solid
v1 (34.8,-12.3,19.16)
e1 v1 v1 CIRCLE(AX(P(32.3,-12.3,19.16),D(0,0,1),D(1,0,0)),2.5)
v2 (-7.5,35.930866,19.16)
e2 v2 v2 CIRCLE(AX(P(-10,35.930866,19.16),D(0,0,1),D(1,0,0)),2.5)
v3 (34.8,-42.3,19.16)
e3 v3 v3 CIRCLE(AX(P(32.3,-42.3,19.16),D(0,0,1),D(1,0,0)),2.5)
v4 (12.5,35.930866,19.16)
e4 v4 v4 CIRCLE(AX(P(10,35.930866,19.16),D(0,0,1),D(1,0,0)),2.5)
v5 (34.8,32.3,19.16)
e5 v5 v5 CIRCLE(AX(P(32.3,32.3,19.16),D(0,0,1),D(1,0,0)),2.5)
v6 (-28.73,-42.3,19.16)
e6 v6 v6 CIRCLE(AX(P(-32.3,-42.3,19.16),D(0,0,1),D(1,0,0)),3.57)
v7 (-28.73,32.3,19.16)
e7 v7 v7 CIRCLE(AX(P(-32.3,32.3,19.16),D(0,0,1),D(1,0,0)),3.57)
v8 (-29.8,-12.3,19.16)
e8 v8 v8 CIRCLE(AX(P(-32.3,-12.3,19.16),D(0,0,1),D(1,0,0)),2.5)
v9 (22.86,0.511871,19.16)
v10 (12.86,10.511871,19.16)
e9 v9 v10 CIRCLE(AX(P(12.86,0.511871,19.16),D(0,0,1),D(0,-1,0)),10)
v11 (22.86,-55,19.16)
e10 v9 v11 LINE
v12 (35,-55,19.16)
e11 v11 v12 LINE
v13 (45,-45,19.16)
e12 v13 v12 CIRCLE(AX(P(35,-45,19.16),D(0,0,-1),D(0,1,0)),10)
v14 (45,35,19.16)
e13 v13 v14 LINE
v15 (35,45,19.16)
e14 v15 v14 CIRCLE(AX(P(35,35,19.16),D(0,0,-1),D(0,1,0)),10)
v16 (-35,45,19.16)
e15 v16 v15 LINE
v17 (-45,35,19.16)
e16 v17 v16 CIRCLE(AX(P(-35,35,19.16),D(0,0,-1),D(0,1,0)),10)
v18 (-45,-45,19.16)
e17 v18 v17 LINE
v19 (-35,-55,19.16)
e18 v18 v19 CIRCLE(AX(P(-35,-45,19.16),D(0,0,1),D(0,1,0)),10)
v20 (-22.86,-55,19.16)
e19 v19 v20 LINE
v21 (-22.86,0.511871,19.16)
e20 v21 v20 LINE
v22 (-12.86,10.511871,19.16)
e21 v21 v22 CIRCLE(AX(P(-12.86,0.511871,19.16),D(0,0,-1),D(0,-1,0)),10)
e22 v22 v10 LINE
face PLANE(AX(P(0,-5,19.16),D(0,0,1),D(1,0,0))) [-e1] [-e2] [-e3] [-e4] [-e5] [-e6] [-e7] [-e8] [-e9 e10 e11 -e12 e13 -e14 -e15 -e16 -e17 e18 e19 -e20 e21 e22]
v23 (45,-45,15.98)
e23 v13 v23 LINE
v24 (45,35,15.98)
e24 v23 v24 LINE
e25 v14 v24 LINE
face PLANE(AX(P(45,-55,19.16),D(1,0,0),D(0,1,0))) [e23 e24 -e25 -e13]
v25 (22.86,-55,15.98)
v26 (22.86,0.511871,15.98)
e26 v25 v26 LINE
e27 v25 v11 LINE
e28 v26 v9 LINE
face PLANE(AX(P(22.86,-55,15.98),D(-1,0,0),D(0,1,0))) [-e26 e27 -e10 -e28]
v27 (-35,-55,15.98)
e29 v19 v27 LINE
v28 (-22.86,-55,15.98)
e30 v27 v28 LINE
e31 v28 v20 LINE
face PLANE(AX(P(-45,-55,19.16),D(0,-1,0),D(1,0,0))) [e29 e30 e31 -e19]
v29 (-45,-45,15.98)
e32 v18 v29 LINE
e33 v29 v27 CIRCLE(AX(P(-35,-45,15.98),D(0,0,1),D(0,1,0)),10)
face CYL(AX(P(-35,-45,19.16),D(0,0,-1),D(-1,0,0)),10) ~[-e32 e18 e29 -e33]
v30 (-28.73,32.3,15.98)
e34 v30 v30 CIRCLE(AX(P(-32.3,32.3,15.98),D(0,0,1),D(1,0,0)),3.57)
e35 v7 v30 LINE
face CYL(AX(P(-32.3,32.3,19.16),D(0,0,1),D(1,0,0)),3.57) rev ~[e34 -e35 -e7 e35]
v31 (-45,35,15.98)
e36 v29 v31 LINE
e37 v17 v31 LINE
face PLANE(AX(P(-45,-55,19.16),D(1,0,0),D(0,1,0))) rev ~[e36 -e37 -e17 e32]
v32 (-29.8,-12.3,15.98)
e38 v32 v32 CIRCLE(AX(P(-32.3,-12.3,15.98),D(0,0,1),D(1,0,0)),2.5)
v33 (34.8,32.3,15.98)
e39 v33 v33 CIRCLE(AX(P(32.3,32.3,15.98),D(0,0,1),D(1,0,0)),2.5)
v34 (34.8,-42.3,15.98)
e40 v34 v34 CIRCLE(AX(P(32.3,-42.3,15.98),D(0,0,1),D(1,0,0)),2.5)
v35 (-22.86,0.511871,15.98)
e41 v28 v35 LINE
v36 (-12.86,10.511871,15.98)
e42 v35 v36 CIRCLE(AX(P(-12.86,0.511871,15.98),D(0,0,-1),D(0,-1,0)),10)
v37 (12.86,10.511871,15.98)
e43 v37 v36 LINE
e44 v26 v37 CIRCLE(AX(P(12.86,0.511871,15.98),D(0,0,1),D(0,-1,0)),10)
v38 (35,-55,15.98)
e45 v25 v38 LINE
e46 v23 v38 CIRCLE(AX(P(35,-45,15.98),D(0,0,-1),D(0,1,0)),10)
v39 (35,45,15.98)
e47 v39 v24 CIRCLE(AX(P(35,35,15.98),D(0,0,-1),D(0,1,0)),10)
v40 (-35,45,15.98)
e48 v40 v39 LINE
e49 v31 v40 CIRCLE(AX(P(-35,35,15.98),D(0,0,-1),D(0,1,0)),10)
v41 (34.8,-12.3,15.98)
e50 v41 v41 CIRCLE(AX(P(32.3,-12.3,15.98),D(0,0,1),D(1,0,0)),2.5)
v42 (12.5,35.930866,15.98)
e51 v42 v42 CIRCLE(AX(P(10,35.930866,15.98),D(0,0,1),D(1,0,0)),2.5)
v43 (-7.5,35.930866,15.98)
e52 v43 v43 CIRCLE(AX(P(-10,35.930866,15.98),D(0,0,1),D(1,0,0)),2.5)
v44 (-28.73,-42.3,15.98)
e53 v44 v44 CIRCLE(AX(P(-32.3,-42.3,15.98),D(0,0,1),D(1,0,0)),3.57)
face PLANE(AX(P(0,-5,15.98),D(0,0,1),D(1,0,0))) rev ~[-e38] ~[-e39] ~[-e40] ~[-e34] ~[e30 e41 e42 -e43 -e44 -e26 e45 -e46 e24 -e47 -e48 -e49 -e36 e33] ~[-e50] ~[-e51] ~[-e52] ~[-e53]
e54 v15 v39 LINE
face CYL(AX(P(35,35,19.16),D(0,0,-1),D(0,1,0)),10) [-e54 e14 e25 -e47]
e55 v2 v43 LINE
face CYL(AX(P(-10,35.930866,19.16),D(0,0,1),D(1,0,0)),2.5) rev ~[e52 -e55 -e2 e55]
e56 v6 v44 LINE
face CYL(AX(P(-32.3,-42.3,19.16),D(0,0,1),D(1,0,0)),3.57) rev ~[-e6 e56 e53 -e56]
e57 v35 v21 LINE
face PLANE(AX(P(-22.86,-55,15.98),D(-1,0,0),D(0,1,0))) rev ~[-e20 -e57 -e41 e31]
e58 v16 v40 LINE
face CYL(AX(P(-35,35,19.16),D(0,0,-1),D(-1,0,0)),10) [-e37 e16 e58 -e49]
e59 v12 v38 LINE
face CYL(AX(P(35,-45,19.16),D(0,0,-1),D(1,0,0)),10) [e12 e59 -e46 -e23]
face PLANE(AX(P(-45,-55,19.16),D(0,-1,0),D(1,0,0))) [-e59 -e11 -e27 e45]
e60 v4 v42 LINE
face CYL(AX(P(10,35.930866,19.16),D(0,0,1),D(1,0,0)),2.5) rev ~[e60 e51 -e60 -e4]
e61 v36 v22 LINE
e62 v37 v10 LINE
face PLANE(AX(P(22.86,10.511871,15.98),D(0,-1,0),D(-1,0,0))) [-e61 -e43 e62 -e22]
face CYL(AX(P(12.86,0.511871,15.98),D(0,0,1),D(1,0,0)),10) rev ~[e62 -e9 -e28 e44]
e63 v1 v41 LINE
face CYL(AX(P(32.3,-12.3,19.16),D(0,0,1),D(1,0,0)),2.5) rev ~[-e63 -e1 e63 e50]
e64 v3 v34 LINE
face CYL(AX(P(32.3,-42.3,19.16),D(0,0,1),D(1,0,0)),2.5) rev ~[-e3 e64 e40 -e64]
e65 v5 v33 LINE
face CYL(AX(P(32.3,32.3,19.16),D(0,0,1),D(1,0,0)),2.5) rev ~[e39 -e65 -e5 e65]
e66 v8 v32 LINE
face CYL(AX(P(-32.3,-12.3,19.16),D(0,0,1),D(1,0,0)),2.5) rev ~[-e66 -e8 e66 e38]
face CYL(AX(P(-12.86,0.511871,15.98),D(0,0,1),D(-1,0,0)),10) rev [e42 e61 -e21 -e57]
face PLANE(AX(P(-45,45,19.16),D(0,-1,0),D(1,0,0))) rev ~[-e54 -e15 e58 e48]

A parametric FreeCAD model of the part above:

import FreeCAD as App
import Part
import Sketcher


def edges_at(feature, points):
    """Names of the edges that pass closest to the given points."""
    edges = feature.Shape.Edges
    near = lambda p: min(range(len(edges)), key=lambda i: edges[i].distToShape(Part.Vertex(*p))[0])
    return sorted({f"Edge{near(p) + 1}" for p in points})


def add_polygon(sketch, points):
    """Adds a closed chain of lines whose ends are joined by coincident constraints."""
    first, n = sketch.GeometryCount, len(points)
    for a, b in zip(points, points[1:] + points[:1]):
        sketch.addGeometry(Part.LineSegment(App.Vector(*a, 0), App.Vector(*b, 0)), False)
    for i in range(n):
        sketch.addConstraint(Sketcher.Constraint("Coincident", first + i, 2, first + (i + 1) % n, 1))

doc = App.newDocument("Part")
body = doc.addObject("PartDesign::Body", "Body")

# Sketch on XY plane
sketch1 = body.newObject("Sketcher::SketchObject", "Sketch")
sketch1.AttachmentSupport = (doc.getObject("XY_Plane"), [""])
sketch1.MapMode = "FlatFace"
sketch1.AttachmentOffset = App.Placement(App.Vector(0, 0, 19.16), App.Rotation())
add_polygon(sketch1, [(-45, 45), (-45, -55), (45, -55), (45, 45)])  # lines 0-3
sketch1.addGeometry(Part.Circle(App.Vector(-32.3, -42.3, 0), App.Vector(0, 0, 1), 3.6), False)  # 4
sketch1.addGeometry(Part.Circle(App.Vector(-32.3, -12.3, 0), App.Vector(0, 0, 1), 2.5), False)  # 5
sketch1.addGeometry(Part.Circle(App.Vector(32.3, -42.3, 0), App.Vector(0, 0, 1), 2.5), False)  # 6
sketch1.addGeometry(Part.Circle(App.Vector(32.3, -12.3, 0), App.Vector(0, 0, 1), 2.5), False)  # 7
sketch1.addGeometry(Part.Circle(App.Vector(-32.3, 32.3, 0), App.Vector(0, 0, 1), 3.6), False)  # 8
sketch1.addGeometry(Part.Circle(App.Vector(32.3, 32.3, 0), App.Vector(0, 0, 1), 2.5), False)  # 9
sketch1.addConstraint(Sketcher.Constraint("Vertical", 0))
sketch1.addConstraint(Sketcher.Constraint("Horizontal", 1))
sketch1.addConstraint(Sketcher.Constraint("Vertical", 2))
sketch1.addConstraint(Sketcher.Constraint("Horizontal", 3))
sketch1.addConstraint(Sketcher.Constraint("Equal", 5, 6))
sketch1.addConstraint(Sketcher.Constraint("Equal", 6, 7))
sketch1.addConstraint(Sketcher.Constraint("Equal", 4, 8))
sketch1.addConstraint(Sketcher.Constraint("Equal", 7, 9))
sketch1.addConstraint(Sketcher.Constraint("Symmetric", 4, 3, 6, 3, -2))
sketch1.addConstraint(Sketcher.Constraint("Symmetric", 5, 3, 7, 3, -2))
sketch1.addConstraint(Sketcher.Constraint("Symmetric", 8, 3, 9, 3, -2))
sketch1.addConstraint(Sketcher.Constraint("Vertical", 4, 3, 5, 3))
sketch1.addConstraint(Sketcher.Constraint("Vertical", 5, 3, 8, 3))
sketch1.addConstraint(Sketcher.Constraint("Diameter", 5, 5.0))
sketch1.addConstraint(Sketcher.Constraint("Diameter", 4, 7.14))
sketch1.addConstraint(Sketcher.Constraint("DistanceX", 1, 1, 1, 2, 90.0))
sketch1.addConstraint(Sketcher.Constraint("DistanceY", 0, 2, 0, 1, 100.0))
sketch1.addConstraint(Sketcher.Constraint("DistanceX", 0, 2, -1, 1, 45.0))
sketch1.addConstraint(Sketcher.Constraint("DistanceY", 0, 2, -1, 1, 55.0))
sketch1.addConstraint(Sketcher.Constraint("DistanceY", 4, 3, 5, 3, 30.0))
sketch1.addConstraint(Sketcher.Constraint("DistanceX", 4, 3, -1, 1, 32.3))
sketch1.addConstraint(Sketcher.Constraint("DistanceY", 4, 3, -1, 1, 42.3))
sketch1.addConstraint(Sketcher.Constraint("DistanceY", -1, 1, 8, 3, 32.3))
pad1 = body.newObject("PartDesign::Pad", "Pad")
pad1.Profile = sketch1
pad1.Length = 3.18
pad1.Reversed = True

# Sketch on XY plane
sketch2 = body.newObject("Sketcher::SketchObject", "Sketch001")
sketch2.AttachmentSupport = (doc.getObject("XY_Plane"), [""])
sketch2.MapMode = "FlatFace"
sketch2.AttachmentOffset = App.Placement(App.Vector(0, 0, 15.98), App.Rotation())
add_polygon(sketch2, [(23, 11), (23, -55), (-23, -55), (-23, 11)])  # lines 0-3
sketch2.addConstraint(Sketcher.Constraint("Vertical", 0))
sketch2.addConstraint(Sketcher.Constraint("Horizontal", 1))
sketch2.addConstraint(Sketcher.Constraint("Vertical", 2))
sketch2.addConstraint(Sketcher.Constraint("Horizontal", 3))
sketch2.addConstraint(Sketcher.Constraint("DistanceY", 0, 2, -1, 1, 55.0))
sketch2.addConstraint(Sketcher.Constraint("DistanceX", 1, 2, 1, 1, 45.72))
sketch2.addConstraint(Sketcher.Constraint("DistanceX", -1, 1, 0, 2, 22.86))
sketch2.addConstraint(Sketcher.Constraint("DistanceY", 0, 2, 0, 1, 65.511871))
pocket1 = body.newObject("PartDesign::Pocket", "Pocket")
pocket1.Profile = sketch2
pocket1.Type = "ThroughAll"
pocket1.Reversed = True
doc.recompute()

fillet = body.newObject("PartDesign::Fillet", "Fillet")
fillet.Base = (pocket1, edges_at(pocket1, [
    (22.86, 10.512, 17.57),
    (-22.86, 10.512, 17.57),
    (-45, 45, 17.57),
    (45, 45, 17.57),
    (45, -55, 17.57),
    (-45, -55, 17.57),
]))
fillet.Radius = 10

# Sketch on XY plane
sketch3 = body.newObject("Sketcher::SketchObject", "Sketch002")
sketch3.AttachmentSupport = (doc.getObject("XY_Plane"), [""])
sketch3.MapMode = "FlatFace"
sketch3.AttachmentOffset = App.Placement(App.Vector(0, 0, 19.16), App.Rotation())
sketch3.addGeometry(Part.Circle(App.Vector(10, 35.9, 0), App.Vector(0, 0, 1), 2.5), False)
sketch3.addGeometry(Part.Circle(App.Vector(-10, 35.9, 0), App.Vector(0, 0, 1), 2.5), False)
sketch3.addConstraint(Sketcher.Constraint("Equal", 0, 1))
sketch3.addConstraint(Sketcher.Constraint("Symmetric", 0, 3, 1, 3, -2))
sketch3.addConstraint(Sketcher.Constraint("Diameter", 0, 5.0))
sketch3.addConstraint(Sketcher.Constraint("DistanceX", -1, 1, 0, 3, 10.0))
sketch3.addConstraint(Sketcher.Constraint("DistanceY", -1, 1, 0, 3, 35.930866))
pocket2 = body.newObject("PartDesign::Pocket", "Pocket001")
pocket2.Profile = sketch3
pocket2.Type = "ThroughAll"

doc.recompute()
